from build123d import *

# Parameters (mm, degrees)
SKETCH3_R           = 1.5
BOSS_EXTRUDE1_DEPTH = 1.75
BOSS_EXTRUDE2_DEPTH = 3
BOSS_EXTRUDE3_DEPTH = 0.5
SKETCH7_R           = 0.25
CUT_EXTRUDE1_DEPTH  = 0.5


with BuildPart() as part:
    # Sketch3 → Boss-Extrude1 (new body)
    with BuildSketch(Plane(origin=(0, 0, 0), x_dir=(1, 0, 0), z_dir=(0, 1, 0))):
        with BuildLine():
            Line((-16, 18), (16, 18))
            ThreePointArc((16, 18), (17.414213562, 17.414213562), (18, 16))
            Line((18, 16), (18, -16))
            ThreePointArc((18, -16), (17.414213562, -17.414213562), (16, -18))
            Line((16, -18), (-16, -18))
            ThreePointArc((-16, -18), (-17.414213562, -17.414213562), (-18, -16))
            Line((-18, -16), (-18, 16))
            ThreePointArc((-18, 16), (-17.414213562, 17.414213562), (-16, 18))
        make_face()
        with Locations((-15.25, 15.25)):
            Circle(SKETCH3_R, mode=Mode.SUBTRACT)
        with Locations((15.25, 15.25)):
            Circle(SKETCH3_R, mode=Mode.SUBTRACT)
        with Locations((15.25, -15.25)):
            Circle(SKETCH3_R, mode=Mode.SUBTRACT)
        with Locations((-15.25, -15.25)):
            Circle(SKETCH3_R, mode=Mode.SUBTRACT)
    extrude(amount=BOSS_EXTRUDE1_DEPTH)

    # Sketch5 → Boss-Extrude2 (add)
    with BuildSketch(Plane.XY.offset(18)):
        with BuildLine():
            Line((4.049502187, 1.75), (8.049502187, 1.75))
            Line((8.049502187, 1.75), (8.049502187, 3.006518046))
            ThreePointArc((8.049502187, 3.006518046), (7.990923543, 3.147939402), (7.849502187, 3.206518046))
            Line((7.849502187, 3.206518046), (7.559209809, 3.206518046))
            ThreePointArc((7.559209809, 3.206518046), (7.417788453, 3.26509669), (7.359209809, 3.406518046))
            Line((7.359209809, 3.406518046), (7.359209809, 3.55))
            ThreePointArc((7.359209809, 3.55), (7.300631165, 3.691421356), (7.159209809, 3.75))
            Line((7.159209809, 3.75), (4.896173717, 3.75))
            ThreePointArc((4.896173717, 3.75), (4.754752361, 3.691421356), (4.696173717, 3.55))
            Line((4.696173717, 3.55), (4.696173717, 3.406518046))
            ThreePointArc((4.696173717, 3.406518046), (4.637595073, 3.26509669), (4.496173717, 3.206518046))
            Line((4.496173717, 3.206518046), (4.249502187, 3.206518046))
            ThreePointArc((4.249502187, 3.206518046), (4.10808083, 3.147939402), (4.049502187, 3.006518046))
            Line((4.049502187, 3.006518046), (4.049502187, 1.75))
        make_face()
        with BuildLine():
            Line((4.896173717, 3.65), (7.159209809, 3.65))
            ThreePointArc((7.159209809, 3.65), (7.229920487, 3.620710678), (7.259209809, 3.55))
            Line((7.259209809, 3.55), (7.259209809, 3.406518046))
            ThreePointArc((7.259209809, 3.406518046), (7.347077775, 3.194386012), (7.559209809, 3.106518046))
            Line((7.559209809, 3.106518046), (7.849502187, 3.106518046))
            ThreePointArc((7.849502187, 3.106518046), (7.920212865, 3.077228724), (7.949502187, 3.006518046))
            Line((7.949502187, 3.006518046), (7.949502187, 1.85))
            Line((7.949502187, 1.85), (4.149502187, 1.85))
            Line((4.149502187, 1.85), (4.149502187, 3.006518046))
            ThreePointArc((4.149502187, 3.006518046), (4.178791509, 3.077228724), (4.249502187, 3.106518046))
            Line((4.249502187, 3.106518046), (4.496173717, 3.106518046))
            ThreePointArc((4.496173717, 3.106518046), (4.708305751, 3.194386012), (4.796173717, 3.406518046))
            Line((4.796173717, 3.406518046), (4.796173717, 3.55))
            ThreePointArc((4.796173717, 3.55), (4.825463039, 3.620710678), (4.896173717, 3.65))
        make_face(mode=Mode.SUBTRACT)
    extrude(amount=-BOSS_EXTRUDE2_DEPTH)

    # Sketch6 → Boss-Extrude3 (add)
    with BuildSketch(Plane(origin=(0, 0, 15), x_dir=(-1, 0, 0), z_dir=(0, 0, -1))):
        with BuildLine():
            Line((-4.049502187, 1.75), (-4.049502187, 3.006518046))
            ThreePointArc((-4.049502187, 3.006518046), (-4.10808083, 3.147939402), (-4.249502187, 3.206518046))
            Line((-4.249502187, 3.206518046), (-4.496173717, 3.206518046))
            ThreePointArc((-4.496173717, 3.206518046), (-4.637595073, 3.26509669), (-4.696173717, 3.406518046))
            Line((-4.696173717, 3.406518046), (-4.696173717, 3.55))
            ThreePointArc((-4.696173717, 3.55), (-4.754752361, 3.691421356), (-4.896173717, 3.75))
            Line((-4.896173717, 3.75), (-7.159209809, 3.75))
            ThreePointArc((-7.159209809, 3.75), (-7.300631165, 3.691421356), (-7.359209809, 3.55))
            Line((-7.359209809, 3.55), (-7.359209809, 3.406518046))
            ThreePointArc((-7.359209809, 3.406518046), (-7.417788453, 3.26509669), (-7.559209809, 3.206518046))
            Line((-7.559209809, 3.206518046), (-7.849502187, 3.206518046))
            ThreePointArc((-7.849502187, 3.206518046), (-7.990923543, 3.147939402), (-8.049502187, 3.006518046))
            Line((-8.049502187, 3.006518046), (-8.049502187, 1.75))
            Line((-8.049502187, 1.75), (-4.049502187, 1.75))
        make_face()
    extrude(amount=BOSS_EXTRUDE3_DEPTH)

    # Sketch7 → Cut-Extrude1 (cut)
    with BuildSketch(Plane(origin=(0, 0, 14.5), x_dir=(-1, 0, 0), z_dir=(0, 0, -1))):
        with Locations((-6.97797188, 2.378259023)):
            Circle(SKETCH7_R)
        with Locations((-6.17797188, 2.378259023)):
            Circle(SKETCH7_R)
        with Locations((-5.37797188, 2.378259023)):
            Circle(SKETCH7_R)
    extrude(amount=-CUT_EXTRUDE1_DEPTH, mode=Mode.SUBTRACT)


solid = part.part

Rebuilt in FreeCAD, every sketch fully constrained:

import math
import FreeCAD as App
import Part
import Sketcher

doc = App.newDocument("Part")
body = doc.addObject("PartDesign::Body", "Body")

sketch1 = doc.addObject("Sketcher::SketchObject", "Sketch")
body.addObject(sketch1)
sketch1.AttachmentSupport = (doc.XZ_Plane, [""])
sketch1.MapMode = "FlatFace"
sketch1.addGeometry(Part.LineSegment(App.Vector(16, -18, 0), App.Vector(-16, -18, 0)), False)
sketch1.addGeometry(Part.ArcOfCircle(Part.Circle(App.Vector(-16, -16, 0), App.Vector(0, 0, 1), 2), math.radians(-180), math.radians(-90)), False)
sketch1.addGeometry(Part.LineSegment(App.Vector(-18, -16, 0), App.Vector(-18, 16, 0)), False)
sketch1.addGeometry(Part.ArcOfCircle(Part.Circle(App.Vector(-16, 16, 0), App.Vector(0, 0, 1), 2), math.radians(90), math.radians(180)), False)
sketch1.addGeometry(Part.LineSegment(App.Vector(-16, 18, 0), App.Vector(16, 18, 0)), False)
sketch1.addGeometry(Part.ArcOfCircle(Part.Circle(App.Vector(16, 16, 0), App.Vector(0, 0, 1), 2), math.radians(0), math.radians(90)), False)
sketch1.addGeometry(Part.LineSegment(App.Vector(18, 16, 0), App.Vector(18, -16, 0)), False)
sketch1.addGeometry(Part.ArcOfCircle(Part.Circle(App.Vector(16, -16, 0), App.Vector(0, 0, 1), 2), math.radians(-90), math.radians(0)), False)
sketch1.addGeometry(Part.Circle(App.Vector(15.2, 15.2, 0), App.Vector(0, 0, 1), 1.5), False)
sketch1.addGeometry(Part.Circle(App.Vector(-15.2, 15.2, 0), App.Vector(0, 0, 1), 1.5), False)
sketch1.addGeometry(Part.Circle(App.Vector(15.2, -15.2, 0), App.Vector(0, 0, 1), 1.5), False)
sketch1.addGeometry(Part.Circle(App.Vector(-15.2, -15.2, 0), App.Vector(0, 0, 1), 1.5), False)
sketch1.addConstraint(Sketcher.Constraint("Tangent", 0, 2, 1, 2))
sketch1.addConstraint(Sketcher.Constraint("Tangent", 1, 1, 2, 1))
sketch1.addConstraint(Sketcher.Constraint("Tangent", 2, 2, 3, 2))
sketch1.addConstraint(Sketcher.Constraint("Tangent", 3, 1, 4, 1))
sketch1.addConstraint(Sketcher.Constraint("Tangent", 4, 2, 5, 2))
sketch1.addConstraint(Sketcher.Constraint("Tangent", 5, 1, 6, 1))
sketch1.addConstraint(Sketcher.Constraint("Tangent", 6, 2, 7, 2))
sketch1.addConstraint(Sketcher.Constraint("Tangent", 7, 1, 0, 1))
sketch1.addConstraint(Sketcher.Constraint("Horizontal", 0))
sketch1.addConstraint(Sketcher.Constraint("Vertical", 2))
sketch1.addConstraint(Sketcher.Constraint("Horizontal", 4))
sketch1.addConstraint(Sketcher.Constraint("Vertical", 6))
sketch1.addConstraint(Sketcher.Constraint("Equal", 1, 3))
sketch1.addConstraint(Sketcher.Constraint("Equal", 3, 5))
sketch1.addConstraint(Sketcher.Constraint("Equal", 5, 7))
sketch1.addConstraint(Sketcher.Constraint("Equal", 8, 9))
sketch1.addConstraint(Sketcher.Constraint("Equal", 9, 10))
sketch1.addConstraint(Sketcher.Constraint("Equal", 10, 11))
sketch1.addConstraint(Sketcher.Constraint("Symmetric", 1, 3, 5, 3, -1, 1))
sketch1.addConstraint(Sketcher.Constraint("Symmetric", 9, 3, 10, 3, -1, 1))
sketch1.addConstraint(Sketcher.Constraint("Symmetric", 8, 3, 11, 3, -1, 1))
sketch1.addConstraint(Sketcher.Constraint("Symmetric", 8, 3, 9, 3, -2))
sketch1.addConstraint(Sketcher.Constraint("Equal", 4, 2))
sketch1.addConstraint(Sketcher.Constraint("Diameter", 8, 3.0))
sketch1.addConstraint(Sketcher.Constraint("Radius", 1, 2.0))
sketch1.addConstraint(Sketcher.Constraint("DistanceX", 0, 2, 0, 1, 32.0))
sketch1.addConstraint(Sketcher.Constraint("DistanceX", 9, 3, 8, 3, 30.5))
sketch1.addConstraint(Sketcher.Constraint("DistanceY", 10, 3, 8, 3, 30.5))
pad1 = doc.addObject("PartDesign::Pad", "Pad")
body.addObject(pad1)
pad1.Profile = sketch1
pad1.Length = 1.75
pad1.Reversed = True

sketch2 = doc.addObject("Sketcher::SketchObject", "Sketch001")
body.addObject(sketch2)
sketch2.AttachmentSupport = (doc.XY_Plane, [""])
sketch2.MapMode = "FlatFace"
sketch2.AttachmentOffset = App.Placement(App.Vector(0, 0, 18), App.Rotation())
sketch2.addGeometry(Part.LineSegment(App.Vector(4.05, 1.75, 0), App.Vector(8.05, 1.75, 0)), False)
sketch2.addGeometry(Part.LineSegment(App.Vector(8.05, 1.75, 0), App.Vector(8.05, 3.01, 0)), False)
sketch2.addGeometry(Part.ArcOfCircle(Part.Circle(App.Vector(7.85, 3.01, 0), App.Vector(0, 0, 1), 0.2), math.radians(0), math.radians(90)), False)
sketch2.addGeometry(Part.LineSegment(App.Vector(7.85, 3.21, 0), App.Vector(7.56, 3.21, 0)), False)
sketch2.addGeometry(Part.ArcOfCircle(Part.Circle(App.Vector(7.56, 3.41, 0), App.Vector(0, 0, 1), 0.2), math.radians(-180), math.radians(-90)), False)
sketch2.addGeometry(Part.LineSegment(App.Vector(7.36, 3.41, 0), App.Vector(7.36, 3.55, 0)), False)
sketch2.addGeometry(Part.ArcOfCircle(Part.Circle(App.Vector(7.16, 3.55, 0), App.Vector(0, 0, 1), 0.2), math.radians(0), math.radians(90)), False)
sketch2.addGeometry(Part.LineSegment(App.Vector(7.16, 3.75, 0), App.Vector(4.9, 3.75, 0)), False)
sketch2.addGeometry(Part.ArcOfCircle(Part.Circle(App.Vector(4.9, 3.55, 0), App.Vector(0, 0, 1), 0.2), math.radians(90), math.radians(180)), False)
sketch2.addGeometry(Part.LineSegment(App.Vector(4.7, 3.55, 0), App.Vector(4.7, 3.41, 0)), False)
sketch2.addGeometry(Part.ArcOfCircle(Part.Circle(App.Vector(4.5, 3.41, 0), App.Vector(0, 0, 1), 0.2), math.radians(-90), math.radians(0)), False)
sketch2.addGeometry(Part.LineSegment(App.Vector(4.5, 3.21, 0), App.Vector(4.25, 3.21, 0)), False)
sketch2.addGeometry(Part.ArcOfCircle(Part.Circle(App.Vector(4.25, 3.01, 0), App.Vector(0, 0, 1), 0.2), math.radians(90), math.radians(180)), False)
sketch2.addGeometry(Part.LineSegment(App.Vector(4.05, 3.01, 0), App.Vector(4.05, 1.75, 0)), False)
sketch2.addGeometry(Part.ArcOfCircle(Part.Circle(App.Vector(4.9, 3.55, 0), App.Vector(0, 0, 1), 0.1), math.radians(90), math.radians(180)), False)
sketch2.addGeometry(Part.LineSegment(App.Vector(4.9, 3.65, 0), App.Vector(7.16, 3.65, 0)), False)
sketch2.addGeometry(Part.ArcOfCircle(Part.Circle(App.Vector(7.16, 3.55, 0), App.Vector(0, 0, 1), 0.1), math.radians(0), math.radians(90)), False)
sketch2.addGeometry(Part.LineSegment(App.Vector(7.26, 3.55, 0), App.Vector(7.26, 3.41, 0)), False)
sketch2.addGeometry(Part.ArcOfCircle(Part.Circle(App.Vector(7.56, 3.41, 0), App.Vector(0, 0, 1), 0.3), math.radians(-180), math.radians(-90)), False)
sketch2.addGeometry(Part.LineSegment(App.Vector(7.56, 3.11, 0), App.Vector(7.85, 3.11, 0)), False)
sketch2.addGeometry(Part.ArcOfCircle(Part.Circle(App.Vector(7.85, 3.01, 0), App.Vector(0, 0, 1), 0.1), math.radians(0), math.radians(90)), False)
sketch2.addGeometry(Part.LineSegment(App.Vector(7.95, 3.01, 0), App.Vector(7.95, 1.85, 0)), False)
sketch2.addGeometry(Part.LineSegment(App.Vector(7.95, 1.85, 0), App.Vector(4.15, 1.85, 0)), False)
sketch2.addGeometry(Part.LineSegment(App.Vector(4.15, 1.85, 0), App.Vector(4.15, 3.01, 0)), False)
sketch2.addGeometry(Part.ArcOfCircle(Part.Circle(App.Vector(4.25, 3.01, 0), App.Vector(0, 0, 1), 0.1), math.radians(90), math.radians(180)), False)
sketch2.addGeometry(Part.LineSegment(App.Vector(4.25, 3.11, 0), App.Vector(4.5, 3.11, 0)), False)
sketch2.addGeometry(Part.ArcOfCircle(Part.Circle(App.Vector(4.5, 3.41, 0), App.Vector(0, 0, 1), 0.3), math.radians(-90), math.radians(0)), False)
sketch2.addGeometry(Part.LineSegment(App.Vector(4.8, 3.41, 0), App.Vector(4.8, 3.55, 0)), False)
sketch2.addConstraint(Sketcher.Constraint("Coincident", 0, 2, 1, 1))
sketch2.addConstraint(Sketcher.Constraint("Tangent", 1, 2, 2, 1))
sketch2.addConstraint(Sketcher.Constraint("Tangent", 2, 2, 3, 1))
sketch2.addConstraint(Sketcher.Constraint("Tangent", 3, 2, 4, 2))
sketch2.addConstraint(Sketcher.Constraint("Tangent", 4, 1, 5, 1))
sketch2.addConstraint(Sketcher.Constraint("Tangent", 5, 2, 6, 1))
sketch2.addConstraint(Sketcher.Constraint("Tangent", 6, 2, 7, 1))
sketch2.addConstraint(Sketcher.Constraint("Tangent", 7, 2, 8, 1))
sketch2.addConstraint(Sketcher.Constraint("Tangent", 8, 2, 9, 1))
sketch2.addConstraint(Sketcher.Constraint("Tangent", 9, 2, 10, 2))
sketch2.addConstraint(Sketcher.Constraint("Tangent", 10, 1, 11, 1))
sketch2.addConstraint(Sketcher.Constraint("Tangent", 11, 2, 12, 1))
sketch2.addConstraint(Sketcher.Constraint("Tangent", 12, 2, 13, 1))
sketch2.addConstraint(Sketcher.Constraint("Coincident", 13, 2, 0, 1))
sketch2.addConstraint(Sketcher.Constraint("Tangent", 14, 1, 15, 1))
sketch2.addConstraint(Sketcher.Constraint("Tangent", 15, 2, 16, 2))
sketch2.addConstraint(Sketcher.Constraint("Tangent", 16, 1, 17, 1))
sketch2.addConstraint(Sketcher.Constraint("Tangent", 17, 2, 18, 1))
sketch2.addConstraint(Sketcher.Constraint("Tangent", 18, 2, 19, 1))
sketch2.addConstraint(Sketcher.Constraint("Tangent", 19, 2, 20, 2))
sketch2.addConstraint(Sketcher.Constraint("Tangent", 20, 1, 21, 1))
sketch2.addConstraint(Sketcher.Constraint("Coincident", 21, 2, 22, 1))
sketch2.addConstraint(Sketcher.Constraint("Coincident", 22, 2, 23, 1))
sketch2.addConstraint(Sketcher.Constraint("Tangent", 23, 2, 24, 2))
sketch2.addConstraint(Sketcher.Constraint("Tangent", 24, 1, 25, 1))
sketch2.addConstraint(Sketcher.Constraint("Tangent", 25, 2, 26, 1))
sketch2.addConstraint(Sketcher.Constraint("Tangent", 26, 2, 27, 1))
sketch2.addConstraint(Sketcher.Constraint("Tangent", 27, 2, 14, 2))
sketch2.addConstraint(Sketcher.Constraint("Horizontal", 0))
sketch2.addConstraint(Sketcher.Constraint("Vertical", 1))
sketch2.addConstraint(Sketcher.Constraint("Horizontal", 3))
sketch2.addConstraint(Sketcher.Constraint("Vertical", 5))
sketch2.addConstraint(Sketcher.Constraint("Horizontal", 7))
sketch2.addConstraint(Sketcher.Constraint("Vertical", 9))
sketch2.addConstraint(Sketcher.Constraint("Horizontal", 11))
sketch2.addConstraint(Sketcher.Constraint("Vertical", 13))
sketch2.addConstraint(Sketcher.Constraint("Horizontal", 15))
sketch2.addConstraint(Sketcher.Constraint("Vertical", 17))
sketch2.addConstraint(Sketcher.Constraint("Horizontal", 19))
sketch2.addConstraint(Sketcher.Constraint("Vertical", 21))
sketch2.addConstraint(Sketcher.Constraint("Horizontal", 22))
sketch2.addConstraint(Sketcher.Constraint("Vertical", 23))
sketch2.addConstraint(Sketcher.Constraint("Horizontal", 25))
sketch2.addConstraint(Sketcher.Constraint("Vertical", 27))
sketch2.addConstraint(Sketcher.Constraint("Coincident", 14, 3, 8, 3))
sketch2.addConstraint(Sketcher.Constraint("Coincident", 16, 3, 6, 3))
sketch2.addConstraint(Sketcher.Constraint("Coincident", 18, 3, 4, 3))
sketch2.addConstraint(Sketcher.Constraint("Coincident", 20, 3, 2, 3))
sketch2.addConstraint(Sketcher.Constraint("Coincident", 24, 3, 12, 3))
sketch2.addConstraint(Sketcher.Constraint("Coincident", 26, 3, 10, 3))
sketch2.addConstraint(Sketcher.Constraint("Equal", 2, 4))
sketch2.addConstraint(Sketcher.Constraint("Equal", 4, 6))
sketch2.addConstraint(Sketcher.Constraint("Equal", 6, 8))
sketch2.addConstraint(Sketcher.Constraint("Equal", 8, 10))
sketch2.addConstraint(Sketcher.Constraint("Equal", 10, 12))
sketch2.addConstraint(Sketcher.Constraint("Horizontal", 4, 3, 10, 3))
sketch2.addConstraint(Sketcher.Constraint("Radius", 2, 0.2))
sketch2.addConstraint(Sketcher.Constraint("Radius", 14, 0.1))
sketch2.addConstraint(Sketcher.Constraint("DistanceX", 0, 1, 0, 2, 4.0))
sketch2.addConstraint(Sketcher.Constraint("DistanceY", 0, 2, 6, 3, 1.8))
sketch2.addConstraint(Sketcher.Constraint("DistanceY", 0, 2, 21, 2, 0.1))
sketch2.addConstraint(Sketcher.Constraint("DistanceY", -1, 1, 6, 3, 3.55))
sketch2.addConstraint(Sketcher.Constraint("DistanceX", 11, 2, 11, 1, 0.246672))
sketch2.addConstraint(Sketcher.Constraint("DistanceY", 1, 1, 1, 2, 1.256518))
sketch2.addConstraint(Sketcher.Constraint("DistanceX", 3, 2, 3, 1, 0.290292))
sketch2.addConstraint(Sketcher.Constraint("DistanceX", -1, 1, 4, 3, 7.55921))
pad2 = doc.addObject("PartDesign::Pad", "Pad001")
body.addObject(pad2)
pad2.Profile = sketch2
pad2.Length = 3
pad2.Reversed = True

sketch3 = doc.addObject("Sketcher::SketchObject", "Sketch002")
body.addObject(sketch3)
sketch3.AttachmentSupport = (doc.XY_Plane, [""])
sketch3.MapMode = "FlatFace"
sketch3.AttachmentOffset = App.Placement(App.Vector(0, 0, 15), App.Rotation())
sketch3.addGeometry(Part.LineSegment(App.Vector(4.05, 1.75, 0), App.Vector(4.05, 3.01, 0)), False)
sketch3.addGeometry(Part.ArcOfCircle(Part.Circle(App.Vector(4.25, 3.01, 0), App.Vector(0, 0, 1), 0.2), math.radians(90), math.radians(180)), False)
sketch3.addGeometry(Part.LineSegment(App.Vector(4.25, 3.21, 0), App.Vector(4.5, 3.21, 0)), False)
sketch3.addGeometry(Part.ArcOfCircle(Part.Circle(App.Vector(4.5, 3.41, 0), App.Vector(0, 0, 1), 0.2), math.radians(-90), math.radians(0)), False)
sketch3.addGeometry(Part.LineSegment(App.Vector(4.7, 3.41, 0), App.Vector(4.7, 3.55, 0)), False)
sketch3.addGeometry(Part.ArcOfCircle(Part.Circle(App.Vector(4.9, 3.55, 0), App.Vector(0, 0, 1), 0.2), math.radians(90), math.radians(180)), False)
sketch3.addGeometry(Part.LineSegment(App.Vector(4.9, 3.75, 0), App.Vector(7.16, 3.75, 0)), False)
sketch3.addGeometry(Part.ArcOfCircle(Part.Circle(App.Vector(7.16, 3.55, 0), App.Vector(0, 0, 1), 0.2), math.radians(0), math.radians(90)), False)
sketch3.addGeometry(Part.LineSegment(App.Vector(7.36, 3.55, 0), App.Vector(7.36, 3.41, 0)), False)
sketch3.addGeometry(Part.ArcOfCircle(Part.Circle(App.Vector(7.56, 3.41, 0), App.Vector(0, 0, 1), 0.2), math.radians(-180), math.radians(-90)), False)
sketch3.addGeometry(Part.LineSegment(App.Vector(7.56, 3.21, 0), App.Vector(7.85, 3.21, 0)), False)
sketch3.addGeometry(Part.ArcOfCircle(Part.Circle(App.Vector(7.85, 3.01, 0), App.Vector(0, 0, 1), 0.2), math.radians(0), math.radians(90)), False)
sketch3.addGeometry(Part.LineSegment(App.Vector(8.05, 3.01, 0), App.Vector(8.05, 1.75, 0)), False)
sketch3.addGeometry(Part.LineSegment(App.Vector(8.05, 1.75, 0), App.Vector(4.05, 1.75, 0)), False)
sketch3.addConstraint(Sketcher.Constraint("Tangent", 0, 2, 1, 2))
sketch3.addConstraint(Sketcher.Constraint("Tangent", 1, 1, 2, 1))
sketch3.addConstraint(Sketcher.Constraint("Tangent", 2, 2, 3, 1))
sketch3.addConstraint(Sketcher.Constraint("Tangent", 3, 2, 4, 1))
sketch3.addConstraint(Sketcher.Constraint("Tangent", 4, 2, 5, 2))
sketch3.addConstraint(Sketcher.Constraint("Tangent", 5, 1, 6, 1))
sketch3.addConstraint(Sketcher.Constraint("Tangent", 6, 2, 7, 2))
sketch3.addConstraint(Sketcher.Constraint("Tangent", 7, 1, 8, 1))
sketch3.addConstraint(Sketcher.Constraint("Tangent", 8, 2, 9, 1))
sketch3.addConstraint(Sketcher.Constraint("Tangent", 9, 2, 10, 1))
sketch3.addConstraint(Sketcher.Constraint("Tangent", 10, 2, 11, 2))
sketch3.addConstraint(Sketcher.Constraint("Tangent", 11, 1, 12, 1))
sketch3.addConstraint(Sketcher.Constraint("Coincident", 12, 2, 13, 1))
sketch3.addConstraint(Sketcher.Constraint("Coincident", 13, 2, 0, 1))
sketch3.addConstraint(Sketcher.Constraint("Vertical", 0))
sketch3.addConstraint(Sketcher.Constraint("Horizontal", 2))
sketch3.addConstraint(Sketcher.Constraint("Vertical", 4))
sketch3.addConstraint(Sketcher.Constraint("Horizontal", 6))
sketch3.addConstraint(Sketcher.Constraint("Vertical", 8))
sketch3.addConstraint(Sketcher.Constraint("Horizontal", 10))
sketch3.addConstraint(Sketcher.Constraint("Vertical", 12))
sketch3.addConstraint(Sketcher.Constraint("Horizontal", 13))
sketch3.addConstraint(Sketcher.Constraint("Equal", 1, 3))
sketch3.addConstraint(Sketcher.Constraint("Equal", 3, 5))
sketch3.addConstraint(Sketcher.Constraint("Equal", 5, 7))
sketch3.addConstraint(Sketcher.Constraint("Equal", 7, 9))
sketch3.addConstraint(Sketcher.Constraint("Equal", 9, 11))
sketch3.addConstraint(Sketcher.Constraint("Horizontal", 3, 3, 9, 3))
sketch3.addConstraint(Sketcher.Constraint("Radius", 1, 0.2))
sketch3.addConstraint(Sketcher.Constraint("DistanceX", 13, 2, 13, 1, 4.0))
sketch3.addConstraint(Sketcher.Constraint("DistanceY", -1, 1, 5, 3, 3.55))
sketch3.addConstraint(Sketcher.Constraint("DistanceY", -1, 1, 12, 2, 1.75))
sketch3.addConstraint(Sketcher.Constraint("DistanceX", 2, 1, 2, 2, 0.246672))
sketch3.addConstraint(Sketcher.Constraint("DistanceY", 0, 1, 0, 2, 1.256518))
sketch3.addConstraint(Sketcher.Constraint("DistanceX", 6, 1, 6, 2, 2.263036))
sketch3.addConstraint(Sketcher.Constraint("DistanceX", -1, 1, 7, 3, 7.15921))
pad3 = doc.addObject("PartDesign::Pad", "Pad002")
body.addObject(pad3)
pad3.Profile = sketch3
pad3.Length = 0.5
pad3.Reversed = True

sketch4 = doc.addObject("Sketcher::SketchObject", "Sketch003")
body.addObject(sketch4)
sketch4.AttachmentSupport = (doc.XY_Plane, [""])
sketch4.MapMode = "FlatFace"
sketch4.AttachmentOffset = App.Placement(App.Vector(0, 0, 14.5), App.Rotation())
sketch4.addGeometry(Part.Circle(App.Vector(6.98, 2.38, 0), App.Vector(0, 0, 1), 0.25), False)
sketch4.addGeometry(Part.Circle(App.Vector(6.18, 2.38, 0), App.Vector(0, 0, 1), 0.25), False)
sketch4.addGeometry(Part.Circle(App.Vector(5.38, 2.38, 0), App.Vector(0, 0, 1), 0.25), False)
sketch4.addConstraint(Sketcher.Constraint("Equal", 0, 1))
sketch4.addConstraint(Sketcher.Constraint("Equal", 1, 2))
sketch4.addConstraint(Sketcher.Constraint("Horizontal", 0, 3, 1, 3))
sketch4.addConstraint(Sketcher.Constraint("Horizontal", 1, 3, 2, 3))
sketch4.addConstraint(Sketcher.Constraint("Diameter", 0, 0.5))
sketch4.addConstraint(Sketcher.Constraint("DistanceX", 1, 3, 0, 3, 0.8))
sketch4.addConstraint(Sketcher.Constraint("DistanceX", 2, 3, 1, 3, 0.8))
sketch4.addConstraint(Sketcher.Constraint("DistanceX", -1, 1, 0, 3, 6.977972))
sketch4.addConstraint(Sketcher.Constraint("DistanceY", -1, 1, 0, 3, 2.378259))
pocket1 = doc.addObject("PartDesign::Pocket", "Pocket")
body.addObject(pocket1)
pocket1.Profile = sketch4
pocket1.Length = 0.5
pocket1.Reversed = True

doc.recompute()
